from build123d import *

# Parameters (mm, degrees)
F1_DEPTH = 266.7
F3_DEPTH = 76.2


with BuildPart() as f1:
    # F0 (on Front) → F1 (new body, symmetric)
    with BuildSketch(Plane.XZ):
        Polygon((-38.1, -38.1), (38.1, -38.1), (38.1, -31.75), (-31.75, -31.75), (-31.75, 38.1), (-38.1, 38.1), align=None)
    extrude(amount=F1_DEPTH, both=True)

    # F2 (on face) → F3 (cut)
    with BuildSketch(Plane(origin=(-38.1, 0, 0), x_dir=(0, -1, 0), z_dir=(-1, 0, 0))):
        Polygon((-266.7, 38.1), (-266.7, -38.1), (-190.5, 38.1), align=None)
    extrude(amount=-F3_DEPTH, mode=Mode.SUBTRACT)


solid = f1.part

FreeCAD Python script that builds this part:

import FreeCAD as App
import Part
import Sketcher
from FreeCAD import Vector
Q = App.Units.Quantity


def add_polygon(sketch, points):
    """Adds a closed chain of lines whose ends are joined by coincident constraints."""
    first, n = sketch.GeometryCount, len(points)
    for a, b in zip(points, points[1:] + points[:1]):
        sketch.addGeometry(Part.LineSegment(App.Vector(*a, 0), App.Vector(*b, 0)), False)
    for i in range(n):
        sketch.addConstraint(Sketcher.Constraint("Coincident", first + i, 2, first + (i + 1) % n, 1))

doc = App.newDocument("Part")
params = doc.addObject("Spreadsheet::Sheet", "Params")
for row, (alias, value) in enumerate([
    ("sketch1_width", "3 in"),
    ("sketch1_width2", "2.75 in"),
    ("pad1_length", "21 in"),
    ("sketch2_width", "3 in"),
    ("pocket1_length", "3 in"),
], start=1):
    params.set(f"A{row}", alias)
    params.set(f"B{row}", "=" + value)
    params.setAlias(f"B{row}", alias)

body = doc.addObject("PartDesign::Body", "Body")

# Sketch on XZ plane
sketch1 = body.newObject("Sketcher::SketchObject", "Sketch")
sketch1.AttachmentSupport = (doc.getObject("XZ_Plane"), [""])
sketch1.MapMode = "FlatFace"
add_polygon(sketch1, [(-38, -38), (38, -38), (38, -32), (-32, -32), (-32, 38), (-38, 38)])  # lines 0-5
sketch1.addConstraint([
    Sketcher.Constraint("Horizontal", 0),
    Sketcher.Constraint("Vertical", 1),
    Sketcher.Constraint("Horizontal", 2),
    Sketcher.Constraint("Vertical", 3),
    Sketcher.Constraint("Horizontal", 4),
    Sketcher.Constraint("Vertical", 5),
    Sketcher.Constraint("Symmetric", 0, 2, 4, 2, -1, 1),
    Sketcher.Constraint("Equal", 4, 1),
    Sketcher.Constraint("Equal", 2, 3),
    Sketcher.Constraint("DistanceX", 0, 1, 0, 2, Q("3 in")),
    Sketcher.Constraint("DistanceX", 2, 2, 2, 1, Q("2.75 in")),
])
sketch1.setExpression("Constraints[15]", "Params.sketch1_width")
sketch1.setExpression("Constraints[16]", "Params.sketch1_width2")
pad1 = body.newObject("PartDesign::Pad", "Pad")
pad1.Profile = sketch1
pad1.setExpression("Length", "Params.pad1_length")
pad1.Midplane = True

# Sketch on YZ plane
sketch2 = body.newObject("Sketcher::SketchObject", "Sketch001")
sketch2.AttachmentSupport = (doc.getObject("YZ_Plane"), [""])
sketch2.MapMode = "FlatFace"
sketch2.AttachmentOffset = App.Placement(Vector(0, 0, -1.5 * 25.4), App.Rotation())
add_polygon(sketch2, [(267, 38), (267, -38), (190, 38)])  # lines 0-2
sketch2.addConstraint([
    Sketcher.Constraint("Vertical", 0),
    Sketcher.Constraint("Horizontal", 2),
    Sketcher.Constraint("Equal", 2, 0),
    Sketcher.Constraint("DistanceX", 2, 1, 2, 2, Q("3 in")),
    Sketcher.Constraint("DistanceX", -1, 1, 0, 2, Q("10.5 in")),
    Sketcher.Constraint("DistanceY", 0, 2, -1, 1, Q("1.5 in")),
])
sketch2.setExpression("Constraints[6]", "Params.sketch2_width")
pocket1 = body.newObject("PartDesign::Pocket", "Pocket")
pocket1.Profile = sketch2
pocket1.setExpression("Length", "Params.pocket1_length")
pocket1.Reversed = True

doc.recompute()
